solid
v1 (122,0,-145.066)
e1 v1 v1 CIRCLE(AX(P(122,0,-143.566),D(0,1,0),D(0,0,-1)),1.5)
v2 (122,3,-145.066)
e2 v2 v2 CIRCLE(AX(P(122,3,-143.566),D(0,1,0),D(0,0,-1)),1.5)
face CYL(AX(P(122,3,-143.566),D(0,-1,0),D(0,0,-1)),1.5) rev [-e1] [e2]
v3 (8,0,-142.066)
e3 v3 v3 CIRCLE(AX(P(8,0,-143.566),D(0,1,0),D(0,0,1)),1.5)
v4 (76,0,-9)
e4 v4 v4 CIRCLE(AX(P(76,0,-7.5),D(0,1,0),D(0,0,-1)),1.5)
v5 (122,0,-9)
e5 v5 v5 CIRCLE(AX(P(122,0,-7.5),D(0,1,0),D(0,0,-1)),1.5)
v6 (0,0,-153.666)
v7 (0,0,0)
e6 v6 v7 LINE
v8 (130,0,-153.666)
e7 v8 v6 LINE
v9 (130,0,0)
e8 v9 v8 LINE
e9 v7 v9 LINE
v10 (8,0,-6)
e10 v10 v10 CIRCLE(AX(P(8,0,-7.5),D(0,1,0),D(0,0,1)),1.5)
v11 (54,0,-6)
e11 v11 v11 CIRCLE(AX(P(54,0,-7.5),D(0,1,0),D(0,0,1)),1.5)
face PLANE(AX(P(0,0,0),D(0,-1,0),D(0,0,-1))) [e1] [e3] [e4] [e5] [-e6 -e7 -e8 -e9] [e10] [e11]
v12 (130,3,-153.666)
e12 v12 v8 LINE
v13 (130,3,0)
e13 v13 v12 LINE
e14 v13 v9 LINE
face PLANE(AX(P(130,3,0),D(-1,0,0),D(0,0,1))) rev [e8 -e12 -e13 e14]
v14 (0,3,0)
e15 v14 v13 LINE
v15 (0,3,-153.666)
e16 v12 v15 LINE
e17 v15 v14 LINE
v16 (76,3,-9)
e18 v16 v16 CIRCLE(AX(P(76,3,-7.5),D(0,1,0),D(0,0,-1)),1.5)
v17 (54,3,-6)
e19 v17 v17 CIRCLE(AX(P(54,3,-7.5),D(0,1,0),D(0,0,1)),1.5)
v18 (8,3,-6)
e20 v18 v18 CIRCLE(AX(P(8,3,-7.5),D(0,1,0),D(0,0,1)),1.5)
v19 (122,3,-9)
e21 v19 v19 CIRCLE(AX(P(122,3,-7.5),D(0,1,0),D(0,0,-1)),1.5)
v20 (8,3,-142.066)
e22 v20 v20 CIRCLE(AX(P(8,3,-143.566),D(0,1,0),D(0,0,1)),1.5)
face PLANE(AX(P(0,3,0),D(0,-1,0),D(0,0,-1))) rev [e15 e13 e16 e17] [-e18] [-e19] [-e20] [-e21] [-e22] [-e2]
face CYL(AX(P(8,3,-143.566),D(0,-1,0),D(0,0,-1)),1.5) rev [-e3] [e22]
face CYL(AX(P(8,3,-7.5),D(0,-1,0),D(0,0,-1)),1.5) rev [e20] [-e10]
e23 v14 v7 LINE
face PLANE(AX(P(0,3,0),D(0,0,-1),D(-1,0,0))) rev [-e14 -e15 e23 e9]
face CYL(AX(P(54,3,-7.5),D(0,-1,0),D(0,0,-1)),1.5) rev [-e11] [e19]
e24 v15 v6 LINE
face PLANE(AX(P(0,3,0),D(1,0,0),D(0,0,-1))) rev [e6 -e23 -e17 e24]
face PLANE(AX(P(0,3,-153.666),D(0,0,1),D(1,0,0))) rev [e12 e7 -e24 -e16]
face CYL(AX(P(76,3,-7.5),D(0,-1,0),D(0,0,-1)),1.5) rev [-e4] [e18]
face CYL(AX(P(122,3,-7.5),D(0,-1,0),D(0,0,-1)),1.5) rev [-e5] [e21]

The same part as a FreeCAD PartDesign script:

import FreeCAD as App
import Part
import Sketcher
Q = App.Units.Quantity


def add_polygon(sketch, points):
    """Adds a closed chain of lines whose ends are joined by coincident constraints."""
    first, n = sketch.GeometryCount, len(points)
    for a, b in zip(points, points[1:] + points[:1]):
        sketch.addGeometry(Part.LineSegment(App.Vector(*a, 0), App.Vector(*b, 0)), False)
    for i in range(n):
        sketch.addConstraint(Sketcher.Constraint("Coincident", first + i, 2, first + (i + 1) % n, 1))

doc = App.newDocument("Part")
body = doc.addObject("PartDesign::Body", "Body")

# Sketch on XZ plane
sketch1 = body.newObject("Sketcher::SketchObject", "Sketch")
sketch1.AttachmentSupport = (doc.getObject("XZ_Plane"), [""])
sketch1.MapMode = "FlatFace"
add_polygon(sketch1, [(0, -153.7), (0, 0), (130, 0), (130, -153.7)])  # lines 0-3
sketch1.addGeometry(Part.Circle(App.Vector(8, -7.5, 0), App.Vector(0, 0, 1), 1.5), False)  # 4
sketch1.addGeometry(Part.Circle(App.Vector(54, -7.5, 0), App.Vector(0, 0, 1), 1.5), False)  # 5
sketch1.addGeometry(Part.Circle(App.Vector(76, -7.5, 0), App.Vector(0, 0, 1), 1.5), False)  # 6
sketch1.addGeometry(Part.Circle(App.Vector(122, -7.5, 0), App.Vector(0, 0, 1), 1.5), False)  # 7
sketch1.addGeometry(Part.Circle(App.Vector(8, -143.6, 0), App.Vector(0, 0, 1), 1.5), False)  # 8
sketch1.addGeometry(Part.Circle(App.Vector(122, -143.6, 0), App.Vector(0, 0, 1), 1.5), False)  # 9
sketch1.addConstraint(Sketcher.Constraint("Vertical", 0))
sketch1.addConstraint(Sketcher.Constraint("Horizontal", 1))
sketch1.addConstraint(Sketcher.Constraint("Vertical", 2))
sketch1.addConstraint(Sketcher.Constraint("Horizontal", 3))
sketch1.addConstraint(Sketcher.Constraint("Coincident", 0, 2, -1, 1))
sketch1.addConstraint(Sketcher.Constraint("Equal", 4, 5))
sketch1.addConstraint(Sketcher.Constraint("Equal", 5, 6))
sketch1.addConstraint(Sketcher.Constraint("Equal", 6, 7))
sketch1.addConstraint(Sketcher.Constraint("Equal", 7, 8))
sketch1.addConstraint(Sketcher.Constraint("Equal", 8, 9))
sketch1.addConstraint(Sketcher.Constraint("Horizontal", 4, 3, 5, 3))
sketch1.addConstraint(Sketcher.Constraint("Horizontal", 5, 3, 6, 3))
sketch1.addConstraint(Sketcher.Constraint("Horizontal", 6, 3, 7, 3))
sketch1.addConstraint(Sketcher.Constraint("Horizontal", 8, 3, 9, 3))
sketch1.addConstraint(Sketcher.Constraint("Vertical", 4, 3, 8, 3))
sketch1.addConstraint(Sketcher.Constraint("Vertical", 7, 3, 9, 3))
sketch1.addConstraint(Sketcher.Constraint("Diameter", 4, Q("3 mm")))
sketch1.addConstraint(Sketcher.Constraint("DistanceX", 1, 1, 1, 2, Q("130 mm")))
sketch1.addConstraint(Sketcher.Constraint("DistanceX", -1, 1, 4, 3, Q("8 mm")))
sketch1.addConstraint(Sketcher.Constraint("DistanceX", -1, 1, 5, 3, Q("54 mm")))
sketch1.addConstraint(Sketcher.Constraint("DistanceX", -1, 1, 6, 3, Q("76 mm")))
sketch1.addConstraint(Sketcher.Constraint("DistanceX", -1, 1, 7, 3, Q("122 mm")))
sketch1.addConstraint(Sketcher.Constraint("DistanceY", 4, 3, -1, 1, Q("7.5 mm")))
sketch1.addConstraint(Sketcher.Constraint("DistanceY", 2, 2, 9, 3, Q("10.1 mm")))
sketch1.addConstraint(Sketcher.Constraint("DistanceY", 0, 1, 0, 2, Q("153.666 mm")))
pad1 = body.newObject("PartDesign::Pad", "Pad")
pad1.Profile = sketch1
pad1.Length = 3
pad1.Reversed = True

doc.recompute()
